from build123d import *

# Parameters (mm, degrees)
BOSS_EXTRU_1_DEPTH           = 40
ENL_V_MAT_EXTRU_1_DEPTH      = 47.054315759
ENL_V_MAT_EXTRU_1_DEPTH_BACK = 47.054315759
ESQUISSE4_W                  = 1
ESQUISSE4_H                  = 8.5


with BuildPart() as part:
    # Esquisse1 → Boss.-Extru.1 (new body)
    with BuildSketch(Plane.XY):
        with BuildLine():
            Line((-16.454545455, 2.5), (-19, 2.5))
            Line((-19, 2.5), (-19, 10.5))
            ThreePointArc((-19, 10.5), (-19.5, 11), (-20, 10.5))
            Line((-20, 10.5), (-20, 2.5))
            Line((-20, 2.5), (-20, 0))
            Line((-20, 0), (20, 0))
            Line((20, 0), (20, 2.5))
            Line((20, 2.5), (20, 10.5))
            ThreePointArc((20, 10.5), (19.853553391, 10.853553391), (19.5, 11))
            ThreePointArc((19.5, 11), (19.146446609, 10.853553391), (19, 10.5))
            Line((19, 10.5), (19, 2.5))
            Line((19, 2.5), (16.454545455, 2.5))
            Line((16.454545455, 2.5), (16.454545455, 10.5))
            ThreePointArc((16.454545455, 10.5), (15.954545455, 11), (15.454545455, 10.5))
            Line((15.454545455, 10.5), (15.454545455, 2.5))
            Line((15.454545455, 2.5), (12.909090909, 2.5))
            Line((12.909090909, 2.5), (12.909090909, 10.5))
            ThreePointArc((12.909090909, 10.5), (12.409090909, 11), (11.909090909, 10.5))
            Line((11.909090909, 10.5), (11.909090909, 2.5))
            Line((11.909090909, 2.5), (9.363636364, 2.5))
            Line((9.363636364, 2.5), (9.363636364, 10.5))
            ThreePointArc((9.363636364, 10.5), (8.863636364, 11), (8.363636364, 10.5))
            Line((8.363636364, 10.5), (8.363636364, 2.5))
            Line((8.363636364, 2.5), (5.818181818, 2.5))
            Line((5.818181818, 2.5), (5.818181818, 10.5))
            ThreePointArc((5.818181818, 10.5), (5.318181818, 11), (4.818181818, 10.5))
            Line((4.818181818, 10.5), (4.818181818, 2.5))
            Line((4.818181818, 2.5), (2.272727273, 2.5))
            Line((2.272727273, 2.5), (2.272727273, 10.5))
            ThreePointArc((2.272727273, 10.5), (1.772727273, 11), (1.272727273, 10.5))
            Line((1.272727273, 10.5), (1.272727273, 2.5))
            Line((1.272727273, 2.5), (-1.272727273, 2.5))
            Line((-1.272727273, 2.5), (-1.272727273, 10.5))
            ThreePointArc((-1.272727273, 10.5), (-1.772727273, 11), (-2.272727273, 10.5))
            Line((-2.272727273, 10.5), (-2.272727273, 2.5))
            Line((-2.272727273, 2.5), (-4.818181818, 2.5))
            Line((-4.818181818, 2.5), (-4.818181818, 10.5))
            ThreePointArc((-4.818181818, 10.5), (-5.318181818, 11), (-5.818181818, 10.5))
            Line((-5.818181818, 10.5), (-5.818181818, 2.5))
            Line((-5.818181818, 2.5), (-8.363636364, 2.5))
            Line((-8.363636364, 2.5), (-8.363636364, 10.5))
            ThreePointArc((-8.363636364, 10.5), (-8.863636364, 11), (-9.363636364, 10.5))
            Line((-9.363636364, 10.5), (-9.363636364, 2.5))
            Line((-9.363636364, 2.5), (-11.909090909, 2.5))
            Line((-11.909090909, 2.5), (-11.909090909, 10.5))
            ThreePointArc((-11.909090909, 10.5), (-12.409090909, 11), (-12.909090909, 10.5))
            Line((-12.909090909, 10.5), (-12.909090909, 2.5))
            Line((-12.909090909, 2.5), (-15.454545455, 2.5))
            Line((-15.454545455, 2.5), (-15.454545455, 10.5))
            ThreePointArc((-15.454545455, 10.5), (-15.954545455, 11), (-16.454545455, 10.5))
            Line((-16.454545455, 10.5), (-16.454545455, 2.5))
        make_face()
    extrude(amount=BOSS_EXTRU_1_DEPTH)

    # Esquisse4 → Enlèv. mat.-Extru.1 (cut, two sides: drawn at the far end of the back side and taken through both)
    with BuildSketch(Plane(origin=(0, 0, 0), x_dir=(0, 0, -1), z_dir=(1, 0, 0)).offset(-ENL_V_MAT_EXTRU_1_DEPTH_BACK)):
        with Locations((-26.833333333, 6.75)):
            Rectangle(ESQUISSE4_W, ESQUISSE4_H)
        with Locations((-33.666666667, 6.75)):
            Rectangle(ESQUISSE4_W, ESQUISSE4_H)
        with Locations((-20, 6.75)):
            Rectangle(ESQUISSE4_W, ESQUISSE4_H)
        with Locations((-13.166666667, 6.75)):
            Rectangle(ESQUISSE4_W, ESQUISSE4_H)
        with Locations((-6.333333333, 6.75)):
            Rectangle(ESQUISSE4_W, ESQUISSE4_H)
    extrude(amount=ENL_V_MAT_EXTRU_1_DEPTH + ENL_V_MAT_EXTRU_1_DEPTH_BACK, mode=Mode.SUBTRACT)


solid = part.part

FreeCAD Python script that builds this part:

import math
import FreeCAD as App
import Part
import Sketcher
from FreeCAD import Vector


def add_polygon(sketch, points):
    """Adds a closed chain of lines whose ends are joined by coincident constraints."""
    first, n = sketch.GeometryCount, len(points)
    for a, b in zip(points, points[1:] + points[:1]):
        sketch.addGeometry(Part.LineSegment(App.Vector(*a, 0), App.Vector(*b, 0)), False)
    for i in range(n):
        sketch.addConstraint(Sketcher.Constraint("Coincident", first + i, 2, first + (i + 1) % n, 1))

doc = App.newDocument("Part")
body = doc.addObject("PartDesign::Body", "Body")

# Sketch on XY plane
sketch1 = body.newObject("Sketcher::SketchObject", "Sketch")
sketch1.AttachmentSupport = (doc.getObject("XY_Plane"), [""])
sketch1.MapMode = "FlatFace"
sketch1.addGeometry(Part.LineSegment(Vector(-16.45, 2.5, 0), Vector(-19, 2.5, 0)), False)
sketch1.addGeometry(Part.LineSegment(Vector(-19, 2.5, 0), Vector(-19, 10.5, 0)), False)
sketch1.addGeometry(Part.ArcOfCircle(Part.Circle(Vector(-19.5, 10.5, 0), Vector(0, 0, 1), 0.5), math.radians(0), math.radians(180)), False)
sketch1.addGeometry(Part.LineSegment(Vector(-20, 10.5, 0), Vector(-20, 0, 0)), False)
sketch1.addGeometry(Part.LineSegment(Vector(-20, 0, 0), Vector(20, 0, 0)), False)
sketch1.addGeometry(Part.LineSegment(Vector(20, 0, 0), Vector(20, 10.5, 0)), False)
sketch1.addGeometry(Part.ArcOfCircle(Part.Circle(Vector(19.5, 10.5, 0), Vector(0, 0, 1), 0.5), math.radians(0), math.radians(90)), False)
sketch1.addGeometry(Part.ArcOfCircle(Part.Circle(Vector(19.5, 10.5, 0), Vector(0, 0, 1), 0.5), math.radians(90), math.radians(180)), False)
sketch1.addGeometry(Part.LineSegment(Vector(19, 10.5, 0), Vector(19, 2.5, 0)), False)
sketch1.addGeometry(Part.LineSegment(Vector(19, 2.5, 0), Vector(16.45, 2.5, 0)), False)
sketch1.addGeometry(Part.LineSegment(Vector(16.45, 2.5, 0), Vector(16.45, 10.5, 0)), False)
sketch1.addGeometry(Part.ArcOfCircle(Part.Circle(Vector(15.95, 10.5, 0), Vector(0, 0, 1), 0.5), math.radians(0), math.radians(180)), False)
sketch1.addGeometry(Part.LineSegment(Vector(15.45, 10.5, 0), Vector(15.45, 2.5, 0)), False)
sketch1.addGeometry(Part.LineSegment(Vector(15.45, 2.5, 0), Vector(12.91, 2.5, 0)), False)
sketch1.addGeometry(Part.LineSegment(Vector(12.91, 2.5, 0), Vector(12.91, 10.5, 0)), False)
sketch1.addGeometry(Part.ArcOfCircle(Part.Circle(Vector(12.41, 10.5, 0), Vector(0, 0, 1), 0.5), math.radians(0), math.radians(180)), False)
sketch1.addGeometry(Part.LineSegment(Vector(11.91, 10.5, 0), Vector(11.91, 2.5, 0)), False)
sketch1.addGeometry(Part.LineSegment(Vector(11.91, 2.5, 0), Vector(9.36, 2.5, 0)), False)
sketch1.addGeometry(Part.LineSegment(Vector(9.36, 2.5, 0), Vector(9.36, 10.5, 0)), False)
sketch1.addGeometry(Part.ArcOfCircle(Part.Circle(Vector(8.86, 10.5, 0), Vector(0, 0, 1), 0.5), math.radians(0), math.radians(180)), False)
sketch1.addGeometry(Part.LineSegment(Vector(8.36, 10.5, 0), Vector(8.36, 2.5, 0)), False)
sketch1.addGeometry(Part.LineSegment(Vector(8.36, 2.5, 0), Vector(5.82, 2.5, 0)), False)
sketch1.addGeometry(Part.LineSegment(Vector(5.82, 2.5, 0), Vector(5.82, 10.5, 0)), False)
sketch1.addGeometry(Part.ArcOfCircle(Part.Circle(Vector(5.32, 10.5, 0), Vector(0, 0, 1), 0.5), math.radians(0), math.radians(180)), False)
sketch1.addGeometry(Part.LineSegment(Vector(4.82, 10.5, 0), Vector(4.82, 2.5, 0)), False)
sketch1.addGeometry(Part.LineSegment(Vector(4.82, 2.5, 0), Vector(2.27, 2.5, 0)), False)
sketch1.addGeometry(Part.LineSegment(Vector(2.27, 2.5, 0), Vector(2.27, 10.5, 0)), False)
sketch1.addGeometry(Part.ArcOfCircle(Part.Circle(Vector(1.77, 10.5, 0), Vector(0, 0, 1), 0.5), math.radians(0), math.radians(180)), False)
sketch1.addGeometry(Part.LineSegment(Vector(1.27, 10.5, 0), Vector(1.27, 2.5, 0)), False)
sketch1.addGeometry(Part.LineSegment(Vector(1.27, 2.5, 0), Vector(-1.27, 2.5, 0)), False)
sketch1.addGeometry(Part.LineSegment(Vector(-1.27, 2.5, 0), Vector(-1.27, 10.5, 0)), False)
sketch1.addGeometry(Part.ArcOfCircle(Part.Circle(Vector(-1.77, 10.5, 0), Vector(0, 0, 1), 0.5), math.radians(0), math.radians(180)), False)
sketch1.addGeometry(Part.LineSegment(Vector(-2.27, 10.5, 0), Vector(-2.27, 2.5, 0)), False)
sketch1.addGeometry(Part.LineSegment(Vector(-2.27, 2.5, 0), Vector(-4.82, 2.5, 0)), False)
sketch1.addGeometry(Part.LineSegment(Vector(-4.82, 2.5, 0), Vector(-4.82, 10.5, 0)), False)
sketch1.addGeometry(Part.ArcOfCircle(Part.Circle(Vector(-5.32, 10.5, 0), Vector(0, 0, 1), 0.5), math.radians(0), math.radians(180)), False)
sketch1.addGeometry(Part.LineSegment(Vector(-5.82, 10.5, 0), Vector(-5.82, 2.5, 0)), False)
sketch1.addGeometry(Part.LineSegment(Vector(-5.82, 2.5, 0), Vector(-8.36, 2.5, 0)), False)
sketch1.addGeometry(Part.LineSegment(Vector(-8.36, 2.5, 0), Vector(-8.36, 10.5, 0)), False)
sketch1.addGeometry(Part.ArcOfCircle(Part.Circle(Vector(-8.86, 10.5, 0), Vector(0, 0, 1), 0.5), math.radians(0), math.radians(180)), False)
sketch1.addGeometry(Part.LineSegment(Vector(-9.36, 10.5, 0), Vector(-9.36, 2.5, 0)), False)
sketch1.addGeometry(Part.LineSegment(Vector(-9.36, 2.5, 0), Vector(-11.91, 2.5, 0)), False)
sketch1.addGeometry(Part.LineSegment(Vector(-11.91, 2.5, 0), Vector(-11.91, 10.5, 0)), False)
sketch1.addGeometry(Part.ArcOfCircle(Part.Circle(Vector(-12.41, 10.5, 0), Vector(0, 0, 1), 0.5), math.radians(0), math.radians(180)), False)
sketch1.addGeometry(Part.LineSegment(Vector(-12.91, 10.5, 0), Vector(-12.91, 2.5, 0)), False)
sketch1.addGeometry(Part.LineSegment(Vector(-12.91, 2.5, 0), Vector(-15.45, 2.5, 0)), False)
sketch1.addGeometry(Part.LineSegment(Vector(-15.45, 2.5, 0), Vector(-15.45, 10.5, 0)), False)
sketch1.addGeometry(Part.ArcOfCircle(Part.Circle(Vector(-15.95, 10.5, 0), Vector(0, 0, 1), 0.5), math.radians(0), math.radians(180)), False)
sketch1.addGeometry(Part.LineSegment(Vector(-16.45, 10.5, 0), Vector(-16.45, 2.5, 0)), False)
sketch1.addConstraint(Sketcher.Constraint("Coincident", 0, 2, 1, 1))
sketch1.addConstraint(Sketcher.Constraint("Tangent", 1, 2, 2, 1))
sketch1.addConstraint(Sketcher.Constraint("Tangent", 2, 2, 3, 1))
sketch1.addConstraint(Sketcher.Constraint("Coincident", 3, 2, 4, 1))
sketch1.addConstraint(Sketcher.Constraint("Coincident", 4, 2, 5, 1))
sketch1.addConstraint(Sketcher.Constraint("Tangent", 5, 2, 6, 1))
sketch1.addConstraint(Sketcher.Constraint("Tangent", 6, 2, 7, 1))
sketch1.addConstraint(Sketcher.Constraint("Tangent", 7, 2, 8, 1))
sketch1.addConstraint(Sketcher.Constraint("Coincident", 8, 2, 9, 1))
sketch1.addConstraint(Sketcher.Constraint("Coincident", 9, 2, 10, 1))
sketch1.addConstraint(Sketcher.Constraint("Tangent", 10, 2, 11, 1))
sketch1.addConstraint(Sketcher.Constraint("Tangent", 11, 2, 12, 1))
sketch1.addConstraint(Sketcher.Constraint("Coincident", 12, 2, 13, 1))
sketch1.addConstraint(Sketcher.Constraint("Coincident", 13, 2, 14, 1))
sketch1.addConstraint(Sketcher.Constraint("Tangent", 14, 2, 15, 1))
sketch1.addConstraint(Sketcher.Constraint("Tangent", 15, 2, 16, 1))
sketch1.addConstraint(Sketcher.Constraint("Coincident", 16, 2, 17, 1))
sketch1.addConstraint(Sketcher.Constraint("Coincident", 17, 2, 18, 1))
sketch1.addConstraint(Sketcher.Constraint("Tangent", 18, 2, 19, 1))
sketch1.addConstraint(Sketcher.Constraint("Tangent", 19, 2, 20, 1))
sketch1.addConstraint(Sketcher.Constraint("Coincident", 20, 2, 21, 1))
sketch1.addConstraint(Sketcher.Constraint("Coincident", 21, 2, 22, 1))
sketch1.addConstraint(Sketcher.Constraint("Tangent", 22, 2, 23, 1))
sketch1.addConstraint(Sketcher.Constraint("Tangent", 23, 2, 24, 1))
sketch1.addConstraint(Sketcher.Constraint("Coincident", 24, 2, 25, 1))
sketch1.addConstraint(Sketcher.Constraint("Coincident", 25, 2, 26, 1))
sketch1.addConstraint(Sketcher.Constraint("Tangent", 26, 2, 27, 1))
sketch1.addConstraint(Sketcher.Constraint("Tangent", 27, 2, 28, 1))
sketch1.addConstraint(Sketcher.Constraint("Coincident", 28, 2, 29, 1))
sketch1.addConstraint(Sketcher.Constraint("Coincident", 29, 2, 30, 1))
sketch1.addConstraint(Sketcher.Constraint("Tangent", 30, 2, 31, 1))
sketch1.addConstraint(Sketcher.Constraint("Tangent", 31, 2, 32, 1))
sketch1.addConstraint(Sketcher.Constraint("Coincident", 32, 2, 33, 1))
sketch1.addConstraint(Sketcher.Constraint("Coincident", 33, 2, 34, 1))
sketch1.addConstraint(Sketcher.Constraint("Tangent", 34, 2, 35, 1))
sketch1.addConstraint(Sketcher.Constraint("Tangent", 35, 2, 36, 1))
sketch1.addConstraint(Sketcher.Constraint("Coincident", 36, 2, 37, 1))
sketch1.addConstraint(Sketcher.Constraint("Coincident", 37, 2, 38, 1))
sketch1.addConstraint(Sketcher.Constraint("Tangent", 38, 2, 39, 1))
sketch1.addConstraint(Sketcher.Constraint("Tangent", 39, 2, 40, 1))
sketch1.addConstraint(Sketcher.Constraint("Coincident", 40, 2, 41, 1))
sketch1.addConstraint(Sketcher.Constraint("Coincident", 41, 2, 42, 1))
sketch1.addConstraint(Sketcher.Constraint("Tangent", 42, 2, 43, 1))
sketch1.addConstraint(Sketcher.Constraint("Tangent", 43, 2, 44, 1))
sketch1.addConstraint(Sketcher.Constraint("Coincident", 44, 2, 45, 1))
sketch1.addConstraint(Sketcher.Constraint("Coincident", 45, 2, 46, 1))
sketch1.addConstraint(Sketcher.Constraint("Tangent", 46, 2, 47, 1))
sketch1.addConstraint(Sketcher.Constraint("Tangent", 47, 2, 48, 1))
sketch1.addConstraint(Sketcher.Constraint("Coincident", 48, 2, 0, 1))
sketch1.addConstraint(Sketcher.Constraint("Horizontal", 0))
sketch1.addConstraint(Sketcher.Constraint("Vertical", 1))
sketch1.addConstraint(Sketcher.Constraint("Vertical", 3))
sketch1.addConstraint(Sketcher.Constraint("Horizontal", 4))
sketch1.addConstraint(Sketcher.Constraint("Vertical", 5))
sketch1.addConstraint(Sketcher.Constraint("Vertical", 8))
sketch1.addConstraint(Sketcher.Constraint("Horizontal", 9))
sketch1.addConstraint(Sketcher.Constraint("Vertical", 10))
sketch1.addConstraint(Sketcher.Constraint("Vertical", 12))
sketch1.addConstraint(Sketcher.Constraint("Horizontal", 13))
sketch1.addConstraint(Sketcher.Constraint("Vertical", 14))
sketch1.addConstraint(Sketcher.Constraint("Vertical", 16))
sketch1.addConstraint(Sketcher.Constraint("Horizontal", 17))
sketch1.addConstraint(Sketcher.Constraint("Vertical", 18))
sketch1.addConstraint(Sketcher.Constraint("Vertical", 20))
sketch1.addConstraint(Sketcher.Constraint("Horizontal", 21))
sketch1.addConstraint(Sketcher.Constraint("Vertical", 22))
sketch1.addConstraint(Sketcher.Constraint("Vertical", 24))
sketch1.addConstraint(Sketcher.Constraint("Horizontal", 25))
sketch1.addConstraint(Sketcher.Constraint("Vertical", 26))
sketch1.addConstraint(Sketcher.Constraint("Vertical", 28))
sketch1.addConstraint(Sketcher.Constraint("Horizontal", 29))
sketch1.addConstraint(Sketcher.Constraint("Vertical", 30))
sketch1.addConstraint(Sketcher.Constraint("Vertical", 32))
sketch1.addConstraint(Sketcher.Constraint("Horizontal", 33))
sketch1.addConstraint(Sketcher.Constraint("Vertical", 34))
sketch1.addConstraint(Sketcher.Constraint("Vertical", 36))
sketch1.addConstraint(Sketcher.Constraint("Horizontal", 37))
sketch1.addConstraint(Sketcher.Constraint("Vertical", 38))
sketch1.addConstraint(Sketcher.Constraint("Vertical", 40))
sketch1.addConstraint(Sketcher.Constraint("Horizontal", 41))
sketch1.addConstraint(Sketcher.Constraint("Vertical", 42))
sketch1.addConstraint(Sketcher.Constraint("Vertical", 44))
sketch1.addConstraint(Sketcher.Constraint("Horizontal", 45))
sketch1.addConstraint(Sketcher.Constraint("Vertical", 46))
sketch1.addConstraint(Sketcher.Constraint("Vertical", 48))
sketch1.addConstraint(Sketcher.Constraint("Equal", 2, 6))
sketch1.addConstraint(Sketcher.Constraint("Equal", 6, 7))
sketch1.addConstraint(Sketcher.Constraint("Equal", 7, 11))
sketch1.addConstraint(Sketcher.Constraint("Equal", 11, 15))
sketch1.addConstraint(Sketcher.Constraint("Equal", 15, 19))
sketch1.addConstraint(Sketcher.Constraint("Equal", 19, 23))
sketch1.addConstraint(Sketcher.Constraint("Equal", 23, 27))
sketch1.addConstraint(Sketcher.Constraint("Equal", 27, 31))
sketch1.addConstraint(Sketcher.Constraint("Equal", 31, 35))
sketch1.addConstraint(Sketcher.Constraint("Equal", 35, 39))
sketch1.addConstraint(Sketcher.Constraint("Equal", 39, 43))
sketch1.addConstraint(Sketcher.Constraint("Equal", 43, 47))
sketch1.addConstraint(Sketcher.Constraint("Symmetric", 3, 2, 4, 2, -1, 1))
sketch1.addConstraint(Sketcher.Constraint("Symmetric", 27, 3, 31, 3, -2))
sketch1.addConstraint(Sketcher.Constraint("Symmetric", 23, 3, 35, 3, -2))
sketch1.addConstraint(Sketcher.Constraint("Symmetric", 19, 3, 39, 3, -2))
sketch1.addConstraint(Sketcher.Constraint("Symmetric", 15, 3, 43, 3, -2))
sketch1.addConstraint(Sketcher.Constraint("Symmetric", 11, 3, 47, 3, -2))
sketch1.addConstraint(Sketcher.Constraint("Horizontal", 2, 3, 6, 3))
sketch1.addConstraint(Sketcher.Constraint("Horizontal", 7, 3, 11, 3))
sketch1.addConstraint(Sketcher.Constraint("Horizontal", 11, 3, 15, 3))
sketch1.addConstraint(Sketcher.Constraint("Horizontal", 15, 3, 19, 3))
sketch1.addConstraint(Sketcher.Constraint("Horizontal", 19, 3, 23, 3))
sketch1.addConstraint(Sketcher.Constraint("Horizontal", 23, 3, 27, 3))
sketch1.addConstraint(Sketcher.Constraint("Horizontal", 0, 2, 8, 2))
sketch1.addConstraint(Sketcher.Constraint("Horizontal", 9, 2, 12, 2))
sketch1.addConstraint(Sketcher.Constraint("Horizontal", 13, 2, 16, 2))
sketch1.addConstraint(Sketcher.Constraint("Horizontal", 17, 2, 20, 2))
sketch1.addConstraint(Sketcher.Constraint("Horizontal", 21, 2, 24, 2))
sketch1.addConstraint(Sketcher.Constraint("Horizontal", 25, 2, 28, 2))
sketch1.addConstraint(Sketcher.Constraint("Horizontal", 29, 2, 32, 2))
sketch1.addConstraint(Sketcher.Constraint("Horizontal", 33, 2, 36, 2))
sketch1.addConstraint(Sketcher.Constraint("Horizontal", 37, 2, 40, 2))
sketch1.addConstraint(Sketcher.Constraint("Horizontal", 41, 2, 44, 2))
sketch1.addConstraint(Sketcher.Constraint("Vertical", 7, 3, 6, 2))
sketch1.addConstraint(Sketcher.Constraint("Equal", 9, 13))
sketch1.addConstraint(Sketcher.Constraint("Equal", 13, 17))
sketch1.addConstraint(Sketcher.Constraint("Equal", 17, 21))
sketch1.addConstraint(Sketcher.Constraint("Equal", 21, 25))
sketch1.addConstraint(Sketcher.Constraint("Equal", 25, 29))
sketch1.addConstraint(Sketcher.Constraint("Radius", 2, 0.5))
sketch1.addConstraint(Sketcher.Constraint("DistanceX", 4, 1, 4, 2, 40.0))
sketch1.addConstraint(Sketcher.Constraint("DistanceY", 1, 1, 1, 2, 8.0))
sketch1.addConstraint(Sketcher.Constraint("DistanceY", 3, 2, 3, 1, 10.5))
pad1 = body.newObject("PartDesign::Pad", "Pad")
pad1.Profile = sketch1
pad1.Length = 40

# Sketch on YZ plane
sketch2 = body.newObject("Sketcher::SketchObject", "Sketch001")
sketch2.AttachmentSupport = (doc.getObject("YZ_Plane"), [""])
sketch2.MapMode = "FlatFace"
add_polygon(sketch2, [(11, 27.3), (2.5, 27.3), (2.5, 26.3), (11, 26.3)])  # lines 0-3
add_polygon(sketch2, [(11, 34.2), (2.5, 34.2), (2.5, 33.2), (11, 33.2)])  # lines 4-7
add_polygon(sketch2, [(11, 20.5), (2.5, 20.5), (2.5, 19.5), (11, 19.5)])  # lines 8-11
add_polygon(sketch2, [(11, 13.7), (2.5, 13.7), (2.5, 12.7), (11, 12.7)])  # lines 12-15
add_polygon(sketch2, [(11, 6.8), (2.5, 6.8), (2.5, 5.8), (11, 5.8)])  # lines 16-19
sketch2.addConstraint(Sketcher.Constraint("Horizontal", 0))
sketch2.addConstraint(Sketcher.Constraint("Vertical", 1))
sketch2.addConstraint(Sketcher.Constraint("Horizontal", 2))
sketch2.addConstraint(Sketcher.Constraint("Vertical", 3))
sketch2.addConstraint(Sketcher.Constraint("Horizontal", 4))
sketch2.addConstraint(Sketcher.Constraint("Vertical", 5))
sketch2.addConstraint(Sketcher.Constraint("Horizontal", 6))
sketch2.addConstraint(Sketcher.Constraint("Vertical", 7))
sketch2.addConstraint(Sketcher.Constraint("Horizontal", 8))
sketch2.addConstraint(Sketcher.Constraint("Vertical", 9))
sketch2.addConstraint(Sketcher.Constraint("Horizontal", 10))
sketch2.addConstraint(Sketcher.Constraint("Vertical", 11))
sketch2.addConstraint(Sketcher.Constraint("Horizontal", 12))
sketch2.addConstraint(Sketcher.Constraint("Vertical", 13))
sketch2.addConstraint(Sketcher.Constraint("Horizontal", 14))
sketch2.addConstraint(Sketcher.Constraint("Vertical", 15))
sketch2.addConstraint(Sketcher.Constraint("Horizontal", 16))
sketch2.addConstraint(Sketcher.Constraint("Vertical", 17))
sketch2.addConstraint(Sketcher.Constraint("Horizontal", 18))
sketch2.addConstraint(Sketcher.Constraint("Vertical", 19))
sketch2.addConstraint(Sketcher.Constraint("Vertical", 1, 2, 4, 2))
sketch2.addConstraint(Sketcher.Constraint("Vertical", 3, 2, 6, 2))
sketch2.addConstraint(Sketcher.Constraint("Vertical", 5, 2, 8, 2))
sketch2.addConstraint(Sketcher.Constraint("Vertical", 7, 2, 10, 2))
sketch2.addConstraint(Sketcher.Constraint("Vertical", 9, 2, 12, 2))
sketch2.addConstraint(Sketcher.Constraint("Vertical", 11, 2, 14, 2))
sketch2.addConstraint(Sketcher.Constraint("Vertical", 13, 2, 16, 2))
sketch2.addConstraint(Sketcher.Constraint("Vertical", 15, 2, 18, 2))
sketch2.addConstraint(Sketcher.Constraint("Equal", 3, 5))
sketch2.addConstraint(Sketcher.Constraint("Equal", 7, 9))
sketch2.addConstraint(Sketcher.Constraint("Equal", 11, 13))
sketch2.addConstraint(Sketcher.Constraint("Equal", 15, 17))
sketch2.addConstraint(Sketcher.Constraint("DistanceY", 1, 2, 1, 1, 1.0))
sketch2.addConstraint(Sketcher.Constraint("DistanceX", 0, 2, 0, 1, 8.5))
sketch2.addConstraint(Sketcher.Constraint("DistanceX", -1, 1, 2, 2, 11.0))
sketch2.addConstraint(Sketcher.Constraint("DistanceY", -1, 1, 8, 2, 20.5))
sketch2.addConstraint(Sketcher.Constraint("DistanceY", -1, 1, 0, 2, 27.333333))
sketch2.addConstraint(Sketcher.Constraint("DistanceY", -1, 1, 4, 2, 34.166667))
sketch2.addConstraint(Sketcher.Constraint("DistanceY", -1, 1, 12, 2, 13.666667))
sketch2.addConstraint(Sketcher.Constraint("DistanceY", -1, 1, 16, 2, 6.833333))
pocket1 = body.newObject("PartDesign::Pocket", "Pocket")
pocket1.Profile = sketch2
pocket1.Type = "ThroughAll"
pocket1.Midplane = True

doc.recompute()
